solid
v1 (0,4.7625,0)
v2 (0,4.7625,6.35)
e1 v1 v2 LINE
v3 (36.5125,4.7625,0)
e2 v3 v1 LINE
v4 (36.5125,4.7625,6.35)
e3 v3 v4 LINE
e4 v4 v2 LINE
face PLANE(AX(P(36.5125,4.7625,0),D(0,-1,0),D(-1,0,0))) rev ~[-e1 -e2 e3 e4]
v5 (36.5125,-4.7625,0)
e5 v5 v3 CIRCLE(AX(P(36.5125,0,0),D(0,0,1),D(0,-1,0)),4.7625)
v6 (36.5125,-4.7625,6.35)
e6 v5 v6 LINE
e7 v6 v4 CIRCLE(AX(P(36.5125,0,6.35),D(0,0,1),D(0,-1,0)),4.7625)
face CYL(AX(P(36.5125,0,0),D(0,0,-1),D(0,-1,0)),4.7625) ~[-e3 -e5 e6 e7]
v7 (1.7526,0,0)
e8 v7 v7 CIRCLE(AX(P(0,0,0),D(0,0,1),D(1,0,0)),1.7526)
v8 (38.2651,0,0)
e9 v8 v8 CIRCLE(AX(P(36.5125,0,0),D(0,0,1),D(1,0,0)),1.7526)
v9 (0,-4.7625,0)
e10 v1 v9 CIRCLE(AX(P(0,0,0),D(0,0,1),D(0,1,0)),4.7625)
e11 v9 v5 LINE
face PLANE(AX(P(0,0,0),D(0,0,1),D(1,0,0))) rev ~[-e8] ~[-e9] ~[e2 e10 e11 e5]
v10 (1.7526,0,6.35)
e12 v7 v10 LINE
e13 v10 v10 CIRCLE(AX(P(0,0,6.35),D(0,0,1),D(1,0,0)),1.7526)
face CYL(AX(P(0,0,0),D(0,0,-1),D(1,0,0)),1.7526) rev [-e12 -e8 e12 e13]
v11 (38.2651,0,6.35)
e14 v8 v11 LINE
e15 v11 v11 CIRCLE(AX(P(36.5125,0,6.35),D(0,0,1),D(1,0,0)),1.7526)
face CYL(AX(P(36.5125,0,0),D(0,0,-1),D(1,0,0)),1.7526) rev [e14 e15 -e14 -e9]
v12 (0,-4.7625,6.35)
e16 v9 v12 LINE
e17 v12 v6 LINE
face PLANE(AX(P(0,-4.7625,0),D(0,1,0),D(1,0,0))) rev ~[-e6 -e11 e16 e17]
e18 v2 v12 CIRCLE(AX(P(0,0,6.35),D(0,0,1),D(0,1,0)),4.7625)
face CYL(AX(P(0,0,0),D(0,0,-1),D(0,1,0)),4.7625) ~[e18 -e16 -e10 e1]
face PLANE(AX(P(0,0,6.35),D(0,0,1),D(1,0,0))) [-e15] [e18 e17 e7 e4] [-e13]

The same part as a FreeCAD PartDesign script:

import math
import FreeCAD as App
import Part
import Sketcher
Q = App.Units.Quantity

doc = App.newDocument("Part")
body = doc.addObject("PartDesign::Body", "Body")

sketch1 = body.newObject("Sketcher::SketchObject", "Sketch")
sketch1.AttachmentSupport = (doc.getObject("XY_Plane"), [""])
sketch1.MapMode = "FlatFace"
sketch1.addGeometry(Part.ArcOfCircle(Part.Circle(App.Vector(0, 0, 0), App.Vector(0, 0, 1), 4.7625), math.radians(90), math.radians(270)), False)
sketch1.addGeometry(Part.LineSegment(App.Vector(0, -4.7625, 0), App.Vector(36.5125, -4.7625, 0)), False)
sketch1.addGeometry(Part.ArcOfCircle(Part.Circle(App.Vector(36.5125, 0, 0), App.Vector(0, 0, 1), 4.7625), math.radians(-90), math.radians(90)), False)
sketch1.addGeometry(Part.LineSegment(App.Vector(36.5125, 4.7625, 0), App.Vector(0, 4.7625, 0)), False)
sketch1.addGeometry(Part.Circle(App.Vector(0, 0, 0), App.Vector(0, 0, 1), 1.7526), False)
sketch1.addGeometry(Part.Circle(App.Vector(36.5125, 0, 0), App.Vector(0, 0, 1), 1.7526), False)
sketch1.addConstraint(Sketcher.Constraint("Tangent", 0, 2, 1, 1))
sketch1.addConstraint(Sketcher.Constraint("Tangent", 1, 2, 2, 1))
sketch1.addConstraint(Sketcher.Constraint("Tangent", 2, 2, 3, 1))
sketch1.addConstraint(Sketcher.Constraint("Tangent", 3, 2, 0, 1))
sketch1.addConstraint(Sketcher.Constraint("Horizontal", 1))
sketch1.addConstraint(Sketcher.Constraint("Horizontal", 3))
sketch1.addConstraint(Sketcher.Constraint("Coincident", 0, 3, -1, 1))
sketch1.addConstraint(Sketcher.Constraint("Coincident", 4, 3, -1, 1))
sketch1.addConstraint(Sketcher.Constraint("Coincident", 5, 3, 2, 3))
sketch1.addConstraint(Sketcher.Constraint("Equal", 4, 5))
sketch1.addConstraint(Sketcher.Constraint("Diameter", 4, Q("0.138 in")))
sketch1.addConstraint(Sketcher.Constraint("Radius", 0, Q("0.1875 in")))
sketch1.addConstraint(Sketcher.Constraint("DistanceX", 1, 1, 1, 2, Q("1.4375 in")))
pad1 = body.newObject("PartDesign::Pad", "Pad")
pad1.Profile = sketch1
pad1.Length = Q("0.25 in")

doc.recompute()
